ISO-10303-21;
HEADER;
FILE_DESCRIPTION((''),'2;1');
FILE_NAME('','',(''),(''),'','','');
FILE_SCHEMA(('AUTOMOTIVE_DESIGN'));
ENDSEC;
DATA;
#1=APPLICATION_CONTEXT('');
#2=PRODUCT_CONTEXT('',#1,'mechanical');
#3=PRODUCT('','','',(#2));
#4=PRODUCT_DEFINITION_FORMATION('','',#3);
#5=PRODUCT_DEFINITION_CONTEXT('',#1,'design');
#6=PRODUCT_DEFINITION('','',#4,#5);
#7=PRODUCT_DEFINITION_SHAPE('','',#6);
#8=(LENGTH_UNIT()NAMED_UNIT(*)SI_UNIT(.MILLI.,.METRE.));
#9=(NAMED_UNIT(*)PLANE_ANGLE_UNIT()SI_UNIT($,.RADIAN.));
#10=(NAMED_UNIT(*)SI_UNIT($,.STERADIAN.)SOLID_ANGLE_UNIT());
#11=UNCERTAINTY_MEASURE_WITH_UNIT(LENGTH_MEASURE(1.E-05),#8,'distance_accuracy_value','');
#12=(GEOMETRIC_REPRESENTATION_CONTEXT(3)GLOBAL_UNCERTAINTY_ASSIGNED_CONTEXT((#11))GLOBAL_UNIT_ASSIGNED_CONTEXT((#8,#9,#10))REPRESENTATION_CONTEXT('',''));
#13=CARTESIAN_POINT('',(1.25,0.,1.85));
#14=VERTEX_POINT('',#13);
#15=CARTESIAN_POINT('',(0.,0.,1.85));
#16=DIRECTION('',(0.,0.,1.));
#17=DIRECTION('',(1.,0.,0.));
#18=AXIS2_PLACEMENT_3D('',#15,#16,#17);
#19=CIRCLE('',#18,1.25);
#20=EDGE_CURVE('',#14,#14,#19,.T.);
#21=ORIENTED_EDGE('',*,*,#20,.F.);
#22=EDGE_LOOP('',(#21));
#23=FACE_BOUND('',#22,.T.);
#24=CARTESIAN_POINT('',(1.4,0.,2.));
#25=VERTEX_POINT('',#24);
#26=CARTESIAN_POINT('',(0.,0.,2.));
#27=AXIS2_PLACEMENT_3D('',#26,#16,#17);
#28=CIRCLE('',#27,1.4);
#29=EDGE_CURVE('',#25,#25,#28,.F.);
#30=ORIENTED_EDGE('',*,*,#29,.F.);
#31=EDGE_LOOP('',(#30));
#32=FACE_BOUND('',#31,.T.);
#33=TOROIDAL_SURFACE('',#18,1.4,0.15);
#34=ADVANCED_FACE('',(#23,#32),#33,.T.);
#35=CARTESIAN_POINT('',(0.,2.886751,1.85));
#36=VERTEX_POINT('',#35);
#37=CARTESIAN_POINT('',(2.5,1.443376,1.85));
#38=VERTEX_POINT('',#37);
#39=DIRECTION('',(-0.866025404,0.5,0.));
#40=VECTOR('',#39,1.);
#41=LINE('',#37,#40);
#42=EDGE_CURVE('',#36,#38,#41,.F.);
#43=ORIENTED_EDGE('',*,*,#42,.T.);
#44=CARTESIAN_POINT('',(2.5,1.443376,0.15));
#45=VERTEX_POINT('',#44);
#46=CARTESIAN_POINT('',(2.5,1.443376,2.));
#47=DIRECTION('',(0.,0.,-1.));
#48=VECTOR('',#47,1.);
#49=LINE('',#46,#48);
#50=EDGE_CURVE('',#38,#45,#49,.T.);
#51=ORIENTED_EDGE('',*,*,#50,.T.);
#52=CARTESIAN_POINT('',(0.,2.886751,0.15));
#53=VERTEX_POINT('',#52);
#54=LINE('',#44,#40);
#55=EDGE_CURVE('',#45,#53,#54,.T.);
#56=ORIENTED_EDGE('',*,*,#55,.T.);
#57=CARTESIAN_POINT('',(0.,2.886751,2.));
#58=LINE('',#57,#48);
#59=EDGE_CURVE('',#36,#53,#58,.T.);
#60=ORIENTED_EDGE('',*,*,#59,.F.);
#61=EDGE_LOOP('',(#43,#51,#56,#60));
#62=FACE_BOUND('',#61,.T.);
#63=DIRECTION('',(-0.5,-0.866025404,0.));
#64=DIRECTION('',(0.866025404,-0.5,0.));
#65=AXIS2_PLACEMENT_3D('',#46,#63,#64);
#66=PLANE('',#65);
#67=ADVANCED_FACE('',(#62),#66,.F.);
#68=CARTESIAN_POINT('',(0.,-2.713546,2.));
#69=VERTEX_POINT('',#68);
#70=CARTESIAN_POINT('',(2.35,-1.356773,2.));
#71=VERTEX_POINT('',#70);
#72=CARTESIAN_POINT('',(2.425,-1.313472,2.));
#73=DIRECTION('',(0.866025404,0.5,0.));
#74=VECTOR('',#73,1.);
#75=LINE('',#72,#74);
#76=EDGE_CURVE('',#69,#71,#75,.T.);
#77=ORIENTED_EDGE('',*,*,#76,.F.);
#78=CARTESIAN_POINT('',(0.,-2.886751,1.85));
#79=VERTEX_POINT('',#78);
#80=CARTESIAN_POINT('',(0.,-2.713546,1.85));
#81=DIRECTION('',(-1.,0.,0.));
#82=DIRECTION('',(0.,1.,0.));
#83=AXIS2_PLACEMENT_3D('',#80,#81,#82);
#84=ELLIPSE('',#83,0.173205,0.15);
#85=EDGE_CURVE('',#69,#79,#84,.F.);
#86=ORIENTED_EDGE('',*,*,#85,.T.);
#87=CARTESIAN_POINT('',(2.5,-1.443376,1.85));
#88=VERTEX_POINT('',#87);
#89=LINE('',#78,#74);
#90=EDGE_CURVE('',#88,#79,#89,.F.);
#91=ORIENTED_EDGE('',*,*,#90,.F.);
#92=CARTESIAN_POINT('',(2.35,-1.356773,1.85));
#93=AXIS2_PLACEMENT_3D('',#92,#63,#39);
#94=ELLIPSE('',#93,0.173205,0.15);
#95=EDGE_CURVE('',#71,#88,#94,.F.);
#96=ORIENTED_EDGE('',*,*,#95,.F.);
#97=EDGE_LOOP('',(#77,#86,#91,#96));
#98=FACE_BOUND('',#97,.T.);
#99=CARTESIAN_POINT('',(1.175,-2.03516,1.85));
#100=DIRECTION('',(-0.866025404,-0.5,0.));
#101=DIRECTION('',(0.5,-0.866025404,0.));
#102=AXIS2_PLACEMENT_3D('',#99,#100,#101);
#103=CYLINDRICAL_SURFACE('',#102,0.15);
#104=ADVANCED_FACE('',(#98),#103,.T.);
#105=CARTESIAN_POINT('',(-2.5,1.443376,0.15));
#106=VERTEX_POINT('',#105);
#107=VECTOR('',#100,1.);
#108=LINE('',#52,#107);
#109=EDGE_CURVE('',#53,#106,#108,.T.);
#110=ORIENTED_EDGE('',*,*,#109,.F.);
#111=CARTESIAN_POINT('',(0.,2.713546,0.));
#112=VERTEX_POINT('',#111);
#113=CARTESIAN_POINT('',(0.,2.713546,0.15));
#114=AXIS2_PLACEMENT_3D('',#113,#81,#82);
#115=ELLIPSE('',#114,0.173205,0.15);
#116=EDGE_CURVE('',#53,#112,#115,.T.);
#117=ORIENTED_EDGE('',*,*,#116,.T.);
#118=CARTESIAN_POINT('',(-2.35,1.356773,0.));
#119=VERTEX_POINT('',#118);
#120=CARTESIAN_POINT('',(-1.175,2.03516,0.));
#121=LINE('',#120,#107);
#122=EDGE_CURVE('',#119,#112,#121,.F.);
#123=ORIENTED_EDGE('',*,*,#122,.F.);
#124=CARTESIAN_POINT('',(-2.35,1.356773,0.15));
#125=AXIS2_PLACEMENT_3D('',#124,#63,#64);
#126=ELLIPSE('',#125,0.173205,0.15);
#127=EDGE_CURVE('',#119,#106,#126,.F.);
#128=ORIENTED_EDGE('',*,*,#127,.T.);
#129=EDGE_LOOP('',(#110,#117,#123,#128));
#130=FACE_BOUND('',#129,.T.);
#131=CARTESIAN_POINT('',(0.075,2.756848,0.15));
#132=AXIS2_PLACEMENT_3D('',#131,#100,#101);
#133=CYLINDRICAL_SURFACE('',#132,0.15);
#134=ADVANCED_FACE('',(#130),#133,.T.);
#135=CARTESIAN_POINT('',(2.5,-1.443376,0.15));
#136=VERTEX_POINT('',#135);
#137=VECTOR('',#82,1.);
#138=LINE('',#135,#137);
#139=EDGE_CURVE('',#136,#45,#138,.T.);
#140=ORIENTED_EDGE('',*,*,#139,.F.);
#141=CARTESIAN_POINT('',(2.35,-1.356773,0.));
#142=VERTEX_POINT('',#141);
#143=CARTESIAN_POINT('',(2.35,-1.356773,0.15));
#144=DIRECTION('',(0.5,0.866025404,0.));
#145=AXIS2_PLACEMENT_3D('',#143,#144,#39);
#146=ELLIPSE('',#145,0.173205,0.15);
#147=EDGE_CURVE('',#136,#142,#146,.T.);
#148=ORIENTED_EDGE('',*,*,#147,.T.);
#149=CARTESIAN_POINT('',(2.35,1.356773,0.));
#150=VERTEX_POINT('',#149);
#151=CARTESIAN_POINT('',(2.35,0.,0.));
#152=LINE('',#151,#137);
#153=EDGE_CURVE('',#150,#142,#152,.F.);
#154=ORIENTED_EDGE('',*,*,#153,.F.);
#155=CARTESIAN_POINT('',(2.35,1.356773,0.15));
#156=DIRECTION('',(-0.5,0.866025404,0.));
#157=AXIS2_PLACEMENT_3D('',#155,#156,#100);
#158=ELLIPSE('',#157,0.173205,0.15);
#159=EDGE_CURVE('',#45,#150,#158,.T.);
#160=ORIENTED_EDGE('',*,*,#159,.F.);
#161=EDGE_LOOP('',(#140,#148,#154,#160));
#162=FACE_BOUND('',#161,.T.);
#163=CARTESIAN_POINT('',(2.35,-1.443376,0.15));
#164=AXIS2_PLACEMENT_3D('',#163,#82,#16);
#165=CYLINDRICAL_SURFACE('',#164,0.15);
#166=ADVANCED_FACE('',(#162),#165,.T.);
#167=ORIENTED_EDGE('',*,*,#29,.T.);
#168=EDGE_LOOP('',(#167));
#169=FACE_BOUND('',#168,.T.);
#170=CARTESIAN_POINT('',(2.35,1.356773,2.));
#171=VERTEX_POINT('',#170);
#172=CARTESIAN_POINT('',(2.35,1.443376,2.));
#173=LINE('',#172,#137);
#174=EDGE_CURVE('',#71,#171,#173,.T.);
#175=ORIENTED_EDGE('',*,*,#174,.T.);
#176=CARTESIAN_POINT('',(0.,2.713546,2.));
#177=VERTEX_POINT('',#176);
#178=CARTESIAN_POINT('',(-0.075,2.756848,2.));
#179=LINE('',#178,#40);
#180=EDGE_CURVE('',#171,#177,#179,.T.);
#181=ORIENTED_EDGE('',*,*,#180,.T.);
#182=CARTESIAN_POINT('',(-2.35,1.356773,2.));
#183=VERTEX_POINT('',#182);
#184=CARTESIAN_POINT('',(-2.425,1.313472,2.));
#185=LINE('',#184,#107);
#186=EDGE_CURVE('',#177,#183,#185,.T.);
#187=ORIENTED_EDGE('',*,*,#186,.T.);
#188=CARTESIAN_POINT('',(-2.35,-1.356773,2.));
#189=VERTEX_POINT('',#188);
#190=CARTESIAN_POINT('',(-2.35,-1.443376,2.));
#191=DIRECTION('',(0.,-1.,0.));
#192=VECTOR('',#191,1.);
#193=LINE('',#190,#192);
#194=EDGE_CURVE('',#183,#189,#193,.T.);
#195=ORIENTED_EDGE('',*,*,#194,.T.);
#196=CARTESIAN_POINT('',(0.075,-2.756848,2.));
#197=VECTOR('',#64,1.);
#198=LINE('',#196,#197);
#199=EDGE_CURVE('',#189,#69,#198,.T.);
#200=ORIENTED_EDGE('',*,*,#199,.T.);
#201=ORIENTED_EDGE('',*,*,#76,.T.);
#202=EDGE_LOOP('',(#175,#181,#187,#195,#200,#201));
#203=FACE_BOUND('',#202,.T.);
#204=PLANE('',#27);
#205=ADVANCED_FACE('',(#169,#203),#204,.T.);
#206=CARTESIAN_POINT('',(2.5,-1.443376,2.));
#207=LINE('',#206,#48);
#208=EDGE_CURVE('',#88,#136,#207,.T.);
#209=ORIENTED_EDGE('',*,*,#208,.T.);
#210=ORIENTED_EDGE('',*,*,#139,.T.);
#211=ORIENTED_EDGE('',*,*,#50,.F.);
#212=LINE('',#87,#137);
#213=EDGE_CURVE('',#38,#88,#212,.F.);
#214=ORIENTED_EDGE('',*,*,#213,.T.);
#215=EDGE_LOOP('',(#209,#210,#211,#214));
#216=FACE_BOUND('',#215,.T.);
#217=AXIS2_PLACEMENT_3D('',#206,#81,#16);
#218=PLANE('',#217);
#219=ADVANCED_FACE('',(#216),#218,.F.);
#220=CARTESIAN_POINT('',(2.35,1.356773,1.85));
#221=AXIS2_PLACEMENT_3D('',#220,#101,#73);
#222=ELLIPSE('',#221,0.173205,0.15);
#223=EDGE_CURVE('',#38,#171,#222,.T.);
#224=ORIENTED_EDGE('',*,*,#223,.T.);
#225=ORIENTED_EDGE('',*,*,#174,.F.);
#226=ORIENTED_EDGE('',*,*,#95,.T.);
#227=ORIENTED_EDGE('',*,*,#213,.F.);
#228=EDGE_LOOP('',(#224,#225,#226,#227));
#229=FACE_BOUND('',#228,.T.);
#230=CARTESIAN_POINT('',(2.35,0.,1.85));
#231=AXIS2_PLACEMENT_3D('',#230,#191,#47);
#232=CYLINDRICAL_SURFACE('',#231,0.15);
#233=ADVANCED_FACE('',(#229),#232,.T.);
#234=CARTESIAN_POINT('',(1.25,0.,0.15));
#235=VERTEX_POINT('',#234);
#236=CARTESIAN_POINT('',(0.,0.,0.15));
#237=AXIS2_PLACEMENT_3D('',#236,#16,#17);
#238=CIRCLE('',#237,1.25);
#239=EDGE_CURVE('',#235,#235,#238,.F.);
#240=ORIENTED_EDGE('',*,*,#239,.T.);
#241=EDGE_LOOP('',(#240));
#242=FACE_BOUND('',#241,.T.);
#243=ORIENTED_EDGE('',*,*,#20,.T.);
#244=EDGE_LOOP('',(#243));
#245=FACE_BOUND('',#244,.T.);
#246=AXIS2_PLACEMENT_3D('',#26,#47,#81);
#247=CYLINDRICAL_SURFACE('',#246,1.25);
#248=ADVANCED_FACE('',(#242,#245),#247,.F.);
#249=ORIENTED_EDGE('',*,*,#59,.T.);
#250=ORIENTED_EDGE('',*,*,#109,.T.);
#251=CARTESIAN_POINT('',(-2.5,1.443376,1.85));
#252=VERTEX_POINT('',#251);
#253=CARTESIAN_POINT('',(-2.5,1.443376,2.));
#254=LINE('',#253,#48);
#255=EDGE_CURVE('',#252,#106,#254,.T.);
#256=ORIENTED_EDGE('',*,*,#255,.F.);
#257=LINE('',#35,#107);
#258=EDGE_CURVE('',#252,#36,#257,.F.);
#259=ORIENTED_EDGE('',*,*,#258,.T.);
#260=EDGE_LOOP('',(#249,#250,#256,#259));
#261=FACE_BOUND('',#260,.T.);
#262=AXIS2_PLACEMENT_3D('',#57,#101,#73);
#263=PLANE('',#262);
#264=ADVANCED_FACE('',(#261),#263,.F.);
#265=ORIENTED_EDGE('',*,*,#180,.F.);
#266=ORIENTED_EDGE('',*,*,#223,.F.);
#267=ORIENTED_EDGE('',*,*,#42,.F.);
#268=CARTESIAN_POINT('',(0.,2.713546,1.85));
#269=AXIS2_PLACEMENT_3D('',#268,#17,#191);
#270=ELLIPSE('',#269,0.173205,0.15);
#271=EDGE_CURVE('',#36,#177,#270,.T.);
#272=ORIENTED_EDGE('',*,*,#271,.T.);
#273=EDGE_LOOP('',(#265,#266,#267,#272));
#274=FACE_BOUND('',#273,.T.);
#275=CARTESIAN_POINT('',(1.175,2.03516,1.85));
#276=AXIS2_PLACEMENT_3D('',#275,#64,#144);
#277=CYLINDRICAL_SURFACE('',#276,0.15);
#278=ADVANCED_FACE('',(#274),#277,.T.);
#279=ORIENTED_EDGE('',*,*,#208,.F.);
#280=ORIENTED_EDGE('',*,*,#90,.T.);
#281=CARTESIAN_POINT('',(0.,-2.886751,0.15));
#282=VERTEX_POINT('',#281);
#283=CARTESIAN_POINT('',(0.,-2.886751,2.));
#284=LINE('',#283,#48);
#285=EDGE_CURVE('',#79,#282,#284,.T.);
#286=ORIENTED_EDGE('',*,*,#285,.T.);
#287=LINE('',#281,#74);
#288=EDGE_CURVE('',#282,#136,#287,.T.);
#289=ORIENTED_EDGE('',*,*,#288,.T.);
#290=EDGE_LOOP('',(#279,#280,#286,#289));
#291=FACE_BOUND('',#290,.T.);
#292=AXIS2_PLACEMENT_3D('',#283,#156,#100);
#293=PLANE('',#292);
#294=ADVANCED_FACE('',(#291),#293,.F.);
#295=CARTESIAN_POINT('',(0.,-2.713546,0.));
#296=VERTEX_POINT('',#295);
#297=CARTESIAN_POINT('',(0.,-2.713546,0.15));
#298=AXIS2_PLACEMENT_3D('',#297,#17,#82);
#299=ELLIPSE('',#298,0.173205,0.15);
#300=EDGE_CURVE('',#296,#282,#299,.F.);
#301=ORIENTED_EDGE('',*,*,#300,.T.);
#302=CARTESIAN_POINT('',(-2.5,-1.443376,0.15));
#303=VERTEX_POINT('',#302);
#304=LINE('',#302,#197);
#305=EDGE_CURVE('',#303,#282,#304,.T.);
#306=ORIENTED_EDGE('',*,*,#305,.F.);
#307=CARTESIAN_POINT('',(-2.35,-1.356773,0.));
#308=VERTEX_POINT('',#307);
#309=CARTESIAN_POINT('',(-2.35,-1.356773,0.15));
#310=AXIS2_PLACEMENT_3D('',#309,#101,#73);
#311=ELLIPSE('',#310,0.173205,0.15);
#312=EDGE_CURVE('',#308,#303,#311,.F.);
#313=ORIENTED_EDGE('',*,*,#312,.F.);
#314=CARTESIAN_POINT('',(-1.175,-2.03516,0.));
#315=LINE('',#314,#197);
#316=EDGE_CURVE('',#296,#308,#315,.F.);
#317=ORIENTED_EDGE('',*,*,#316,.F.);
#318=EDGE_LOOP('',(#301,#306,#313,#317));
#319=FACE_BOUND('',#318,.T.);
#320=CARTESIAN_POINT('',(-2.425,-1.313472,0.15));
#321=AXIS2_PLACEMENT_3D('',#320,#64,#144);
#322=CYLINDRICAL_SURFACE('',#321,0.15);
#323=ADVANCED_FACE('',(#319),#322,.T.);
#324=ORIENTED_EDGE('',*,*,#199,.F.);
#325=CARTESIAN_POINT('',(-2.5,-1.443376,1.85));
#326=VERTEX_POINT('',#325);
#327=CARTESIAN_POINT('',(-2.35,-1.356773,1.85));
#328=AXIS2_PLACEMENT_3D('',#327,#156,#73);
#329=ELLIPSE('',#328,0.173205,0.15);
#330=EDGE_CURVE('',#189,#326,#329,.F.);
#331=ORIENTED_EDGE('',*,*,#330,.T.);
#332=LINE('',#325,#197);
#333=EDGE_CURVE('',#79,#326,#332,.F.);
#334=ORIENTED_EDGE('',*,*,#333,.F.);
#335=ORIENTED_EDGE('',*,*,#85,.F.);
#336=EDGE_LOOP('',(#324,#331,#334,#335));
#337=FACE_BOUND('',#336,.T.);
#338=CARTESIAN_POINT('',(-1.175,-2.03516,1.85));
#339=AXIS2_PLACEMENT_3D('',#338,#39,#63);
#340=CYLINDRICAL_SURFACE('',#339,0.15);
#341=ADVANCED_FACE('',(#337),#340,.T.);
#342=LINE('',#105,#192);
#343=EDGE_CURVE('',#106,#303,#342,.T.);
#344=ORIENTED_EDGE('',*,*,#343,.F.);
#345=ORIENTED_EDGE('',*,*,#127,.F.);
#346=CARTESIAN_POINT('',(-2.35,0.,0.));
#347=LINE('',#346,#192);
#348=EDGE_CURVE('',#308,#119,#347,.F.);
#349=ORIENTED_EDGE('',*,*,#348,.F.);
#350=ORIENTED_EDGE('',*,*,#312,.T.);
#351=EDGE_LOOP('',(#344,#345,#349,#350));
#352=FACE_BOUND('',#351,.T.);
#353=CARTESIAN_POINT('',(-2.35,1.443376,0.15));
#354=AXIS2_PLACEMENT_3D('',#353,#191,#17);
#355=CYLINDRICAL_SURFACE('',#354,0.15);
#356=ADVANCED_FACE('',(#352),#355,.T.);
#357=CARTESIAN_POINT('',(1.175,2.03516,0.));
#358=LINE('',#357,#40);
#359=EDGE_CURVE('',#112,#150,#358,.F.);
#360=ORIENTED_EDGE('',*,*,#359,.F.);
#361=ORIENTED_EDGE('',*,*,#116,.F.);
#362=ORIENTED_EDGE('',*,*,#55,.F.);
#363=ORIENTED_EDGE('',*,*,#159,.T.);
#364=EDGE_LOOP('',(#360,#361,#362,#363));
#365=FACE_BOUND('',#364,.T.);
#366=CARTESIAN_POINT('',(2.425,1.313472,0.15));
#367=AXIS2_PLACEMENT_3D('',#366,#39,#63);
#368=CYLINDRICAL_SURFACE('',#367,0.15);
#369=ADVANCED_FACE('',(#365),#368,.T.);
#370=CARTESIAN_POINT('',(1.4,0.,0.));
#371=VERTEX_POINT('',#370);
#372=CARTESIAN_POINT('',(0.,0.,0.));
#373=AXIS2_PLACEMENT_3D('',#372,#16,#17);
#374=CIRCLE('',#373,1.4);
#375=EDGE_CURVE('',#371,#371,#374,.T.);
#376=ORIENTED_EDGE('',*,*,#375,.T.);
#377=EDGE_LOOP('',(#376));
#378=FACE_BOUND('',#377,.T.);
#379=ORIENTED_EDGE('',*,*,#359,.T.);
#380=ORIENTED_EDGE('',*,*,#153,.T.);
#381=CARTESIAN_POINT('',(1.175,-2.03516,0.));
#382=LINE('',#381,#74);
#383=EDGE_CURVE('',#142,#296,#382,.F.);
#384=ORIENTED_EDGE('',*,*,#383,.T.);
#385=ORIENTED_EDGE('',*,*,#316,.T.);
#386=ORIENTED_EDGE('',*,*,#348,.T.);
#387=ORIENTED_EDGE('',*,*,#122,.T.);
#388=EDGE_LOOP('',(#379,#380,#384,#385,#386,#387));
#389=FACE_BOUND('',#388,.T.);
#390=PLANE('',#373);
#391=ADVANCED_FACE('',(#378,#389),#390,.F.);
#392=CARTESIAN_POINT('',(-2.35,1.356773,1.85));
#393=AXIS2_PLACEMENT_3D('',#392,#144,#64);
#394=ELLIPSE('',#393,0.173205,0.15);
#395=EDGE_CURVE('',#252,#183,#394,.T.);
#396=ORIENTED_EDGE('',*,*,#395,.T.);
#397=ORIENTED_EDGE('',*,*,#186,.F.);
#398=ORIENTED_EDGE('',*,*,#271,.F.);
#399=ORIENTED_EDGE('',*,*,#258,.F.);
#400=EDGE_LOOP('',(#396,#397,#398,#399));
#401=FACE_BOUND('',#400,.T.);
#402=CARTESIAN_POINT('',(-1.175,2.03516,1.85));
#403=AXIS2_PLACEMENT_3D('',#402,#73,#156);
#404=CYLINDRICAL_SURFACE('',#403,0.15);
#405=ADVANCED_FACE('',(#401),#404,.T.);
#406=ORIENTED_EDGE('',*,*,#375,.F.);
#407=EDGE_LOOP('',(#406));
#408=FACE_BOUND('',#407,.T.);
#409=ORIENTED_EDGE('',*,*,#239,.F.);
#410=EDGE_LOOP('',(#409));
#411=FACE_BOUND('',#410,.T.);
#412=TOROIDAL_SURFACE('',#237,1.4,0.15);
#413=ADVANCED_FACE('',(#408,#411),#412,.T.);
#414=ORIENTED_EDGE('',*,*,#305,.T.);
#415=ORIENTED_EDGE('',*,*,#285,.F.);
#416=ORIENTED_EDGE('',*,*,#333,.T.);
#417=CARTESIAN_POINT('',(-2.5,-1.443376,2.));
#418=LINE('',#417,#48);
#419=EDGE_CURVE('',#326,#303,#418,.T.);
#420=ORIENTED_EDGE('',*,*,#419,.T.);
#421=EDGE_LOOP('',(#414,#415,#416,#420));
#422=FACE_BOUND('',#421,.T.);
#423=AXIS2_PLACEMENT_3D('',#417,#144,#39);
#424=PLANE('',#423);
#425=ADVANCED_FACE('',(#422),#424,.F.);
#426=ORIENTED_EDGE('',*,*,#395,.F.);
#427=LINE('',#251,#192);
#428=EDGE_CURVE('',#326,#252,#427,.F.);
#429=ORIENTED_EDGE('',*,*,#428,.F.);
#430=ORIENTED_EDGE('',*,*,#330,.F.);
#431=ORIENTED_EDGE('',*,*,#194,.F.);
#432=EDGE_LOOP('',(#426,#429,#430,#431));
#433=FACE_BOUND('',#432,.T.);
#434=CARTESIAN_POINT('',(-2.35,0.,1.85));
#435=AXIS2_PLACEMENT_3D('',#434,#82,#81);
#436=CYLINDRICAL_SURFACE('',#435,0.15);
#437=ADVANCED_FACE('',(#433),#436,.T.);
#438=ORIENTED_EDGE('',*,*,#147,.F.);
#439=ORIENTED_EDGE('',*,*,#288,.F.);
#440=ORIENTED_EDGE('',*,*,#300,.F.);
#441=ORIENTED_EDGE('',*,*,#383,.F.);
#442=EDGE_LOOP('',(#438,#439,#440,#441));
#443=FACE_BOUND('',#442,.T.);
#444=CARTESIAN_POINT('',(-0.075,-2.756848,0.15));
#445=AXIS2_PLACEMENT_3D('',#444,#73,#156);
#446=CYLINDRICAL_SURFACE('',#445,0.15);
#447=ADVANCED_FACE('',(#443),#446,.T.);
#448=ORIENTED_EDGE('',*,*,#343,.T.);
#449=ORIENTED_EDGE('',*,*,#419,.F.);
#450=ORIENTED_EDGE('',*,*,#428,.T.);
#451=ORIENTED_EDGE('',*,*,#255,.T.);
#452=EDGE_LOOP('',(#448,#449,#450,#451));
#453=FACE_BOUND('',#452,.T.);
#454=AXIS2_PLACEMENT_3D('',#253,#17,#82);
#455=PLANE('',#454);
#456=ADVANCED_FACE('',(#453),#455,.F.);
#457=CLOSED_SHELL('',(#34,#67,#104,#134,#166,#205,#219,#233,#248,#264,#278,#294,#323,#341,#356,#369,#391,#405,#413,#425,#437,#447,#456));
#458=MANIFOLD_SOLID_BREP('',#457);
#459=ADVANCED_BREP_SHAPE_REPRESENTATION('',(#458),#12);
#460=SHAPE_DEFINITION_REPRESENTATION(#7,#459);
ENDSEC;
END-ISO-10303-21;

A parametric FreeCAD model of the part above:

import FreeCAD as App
import Part
import Sketcher

V = App.Vector
Q = App.Units.Quantity


def edges_at(feature, points):
    """Names of the edges that pass closest to the given points."""
    edges = feature.Shape.Edges
    near = lambda p: min(range(len(edges)), key=lambda i: edges[i].distToShape(Part.Vertex(*p))[0])
    return sorted({f"Edge{near(p) + 1}" for p in points})


def add_polygon(sketch, points):
    """Adds a closed chain of lines whose ends are joined by coincident constraints."""
    first, n = sketch.GeometryCount, len(points)
    for a, b in zip(points, points[1:] + points[:1]):
        sketch.addGeometry(Part.LineSegment(App.Vector(*a, 0), App.Vector(*b, 0)), False)
    for i in range(n):
        sketch.addConstraint(Sketcher.Constraint("Coincident", first + i, 2, first + (i + 1) % n, 1))

doc = App.newDocument("Part")
params = doc.addObject("Spreadsheet::Sheet", "Params")
for row, (alias, value) in enumerate([
    ("sketch1_diameter", "2.5 mm"),
    ("pad1_length", "2 mm"),
    ("fillet_radius", "0.15 mm"),
], start=1):
    params.set(f"A{row}", alias)
    params.set(f"B{row}", "=" + value)
    params.setAlias(f"B{row}", alias)

body = doc.addObject("PartDesign::Body", "Body")

sketch1 = doc.addObject("Sketcher::SketchObject", "Sketch")
body.addObject(sketch1)
sketch1.AttachmentSupport = (doc.XY_Plane, [""])
sketch1.MapMode = "FlatFace"
add_polygon(sketch1, [(0, 2.9), (-2.5, 1.4), (-2.5, -1.4), (0, -2.9), (2.5, -1.4), (2.5, 1.4)])
sketch1.addGeometry(Part.Circle(V(0, 0, 0), V(0, 0, 1), 1.2), False)
sketch1.addConstraint([
    Sketcher.Constraint("Vertical", 1),
    Sketcher.Constraint("Vertical", 4),
    Sketcher.Constraint("Coincident", 6, 3, -1, 1),
    Sketcher.Constraint("Symmetric", 0, 2, 3, 2, -1, 1),
    Sketcher.Constraint("Symmetric", 2, 2, 5, 2, -1, 1),
    Sketcher.Constraint("PointOnObject", 2, 2, -2),
    Sketcher.Constraint("Parallel", 2, 5),
    Sketcher.Constraint("Horizontal", 1, 2, 3, 2),
    Sketcher.Constraint("Diameter", 6, 2.5),
    Sketcher.Constraint("Angle", 0, Q("-150 deg")),
    Sketcher.Constraint("DistanceX", 1, 2, 3, 2, 5.0),
    Sketcher.Constraint("DistanceY", 1, 2, 1, 1, 2.886751),
])
sketch1.setExpression("Constraints[14]", "Params.sketch1_diameter")
pad1 = doc.addObject("PartDesign::Pad", "Pad")
body.addObject(pad1)
pad1.Profile = sketch1
pad1.setExpression("Length", "Params.pad1_length")
doc.recompute()

fillet = doc.addObject("PartDesign::Fillet", "Fillet")
body.addObject(fillet)
fillet.Base = (pad1, edges_at(pad1, [
    (-2.5, 0, 2),
    (-1.25, -2.165, 2),
    (-1.25, 0, 0),
    (-1.25, 0, 2),
    (1.25, -2.165, 2),
    (2.5, 0, 2),
    (1.25, 2.165, 2),
    (2.5, 0, 0),
    (1.25, -2.165, 0),
    (-1.25, -2.165, 0),
    (-2.5, 0, 0),
    (-1.25, 2.165, 0),
    (1.25, 2.165, 0),
    (-1.25, 2.165, 2),
]))
fillet.setExpression("Radius", "Params.fillet_radius")

doc.recompute()
